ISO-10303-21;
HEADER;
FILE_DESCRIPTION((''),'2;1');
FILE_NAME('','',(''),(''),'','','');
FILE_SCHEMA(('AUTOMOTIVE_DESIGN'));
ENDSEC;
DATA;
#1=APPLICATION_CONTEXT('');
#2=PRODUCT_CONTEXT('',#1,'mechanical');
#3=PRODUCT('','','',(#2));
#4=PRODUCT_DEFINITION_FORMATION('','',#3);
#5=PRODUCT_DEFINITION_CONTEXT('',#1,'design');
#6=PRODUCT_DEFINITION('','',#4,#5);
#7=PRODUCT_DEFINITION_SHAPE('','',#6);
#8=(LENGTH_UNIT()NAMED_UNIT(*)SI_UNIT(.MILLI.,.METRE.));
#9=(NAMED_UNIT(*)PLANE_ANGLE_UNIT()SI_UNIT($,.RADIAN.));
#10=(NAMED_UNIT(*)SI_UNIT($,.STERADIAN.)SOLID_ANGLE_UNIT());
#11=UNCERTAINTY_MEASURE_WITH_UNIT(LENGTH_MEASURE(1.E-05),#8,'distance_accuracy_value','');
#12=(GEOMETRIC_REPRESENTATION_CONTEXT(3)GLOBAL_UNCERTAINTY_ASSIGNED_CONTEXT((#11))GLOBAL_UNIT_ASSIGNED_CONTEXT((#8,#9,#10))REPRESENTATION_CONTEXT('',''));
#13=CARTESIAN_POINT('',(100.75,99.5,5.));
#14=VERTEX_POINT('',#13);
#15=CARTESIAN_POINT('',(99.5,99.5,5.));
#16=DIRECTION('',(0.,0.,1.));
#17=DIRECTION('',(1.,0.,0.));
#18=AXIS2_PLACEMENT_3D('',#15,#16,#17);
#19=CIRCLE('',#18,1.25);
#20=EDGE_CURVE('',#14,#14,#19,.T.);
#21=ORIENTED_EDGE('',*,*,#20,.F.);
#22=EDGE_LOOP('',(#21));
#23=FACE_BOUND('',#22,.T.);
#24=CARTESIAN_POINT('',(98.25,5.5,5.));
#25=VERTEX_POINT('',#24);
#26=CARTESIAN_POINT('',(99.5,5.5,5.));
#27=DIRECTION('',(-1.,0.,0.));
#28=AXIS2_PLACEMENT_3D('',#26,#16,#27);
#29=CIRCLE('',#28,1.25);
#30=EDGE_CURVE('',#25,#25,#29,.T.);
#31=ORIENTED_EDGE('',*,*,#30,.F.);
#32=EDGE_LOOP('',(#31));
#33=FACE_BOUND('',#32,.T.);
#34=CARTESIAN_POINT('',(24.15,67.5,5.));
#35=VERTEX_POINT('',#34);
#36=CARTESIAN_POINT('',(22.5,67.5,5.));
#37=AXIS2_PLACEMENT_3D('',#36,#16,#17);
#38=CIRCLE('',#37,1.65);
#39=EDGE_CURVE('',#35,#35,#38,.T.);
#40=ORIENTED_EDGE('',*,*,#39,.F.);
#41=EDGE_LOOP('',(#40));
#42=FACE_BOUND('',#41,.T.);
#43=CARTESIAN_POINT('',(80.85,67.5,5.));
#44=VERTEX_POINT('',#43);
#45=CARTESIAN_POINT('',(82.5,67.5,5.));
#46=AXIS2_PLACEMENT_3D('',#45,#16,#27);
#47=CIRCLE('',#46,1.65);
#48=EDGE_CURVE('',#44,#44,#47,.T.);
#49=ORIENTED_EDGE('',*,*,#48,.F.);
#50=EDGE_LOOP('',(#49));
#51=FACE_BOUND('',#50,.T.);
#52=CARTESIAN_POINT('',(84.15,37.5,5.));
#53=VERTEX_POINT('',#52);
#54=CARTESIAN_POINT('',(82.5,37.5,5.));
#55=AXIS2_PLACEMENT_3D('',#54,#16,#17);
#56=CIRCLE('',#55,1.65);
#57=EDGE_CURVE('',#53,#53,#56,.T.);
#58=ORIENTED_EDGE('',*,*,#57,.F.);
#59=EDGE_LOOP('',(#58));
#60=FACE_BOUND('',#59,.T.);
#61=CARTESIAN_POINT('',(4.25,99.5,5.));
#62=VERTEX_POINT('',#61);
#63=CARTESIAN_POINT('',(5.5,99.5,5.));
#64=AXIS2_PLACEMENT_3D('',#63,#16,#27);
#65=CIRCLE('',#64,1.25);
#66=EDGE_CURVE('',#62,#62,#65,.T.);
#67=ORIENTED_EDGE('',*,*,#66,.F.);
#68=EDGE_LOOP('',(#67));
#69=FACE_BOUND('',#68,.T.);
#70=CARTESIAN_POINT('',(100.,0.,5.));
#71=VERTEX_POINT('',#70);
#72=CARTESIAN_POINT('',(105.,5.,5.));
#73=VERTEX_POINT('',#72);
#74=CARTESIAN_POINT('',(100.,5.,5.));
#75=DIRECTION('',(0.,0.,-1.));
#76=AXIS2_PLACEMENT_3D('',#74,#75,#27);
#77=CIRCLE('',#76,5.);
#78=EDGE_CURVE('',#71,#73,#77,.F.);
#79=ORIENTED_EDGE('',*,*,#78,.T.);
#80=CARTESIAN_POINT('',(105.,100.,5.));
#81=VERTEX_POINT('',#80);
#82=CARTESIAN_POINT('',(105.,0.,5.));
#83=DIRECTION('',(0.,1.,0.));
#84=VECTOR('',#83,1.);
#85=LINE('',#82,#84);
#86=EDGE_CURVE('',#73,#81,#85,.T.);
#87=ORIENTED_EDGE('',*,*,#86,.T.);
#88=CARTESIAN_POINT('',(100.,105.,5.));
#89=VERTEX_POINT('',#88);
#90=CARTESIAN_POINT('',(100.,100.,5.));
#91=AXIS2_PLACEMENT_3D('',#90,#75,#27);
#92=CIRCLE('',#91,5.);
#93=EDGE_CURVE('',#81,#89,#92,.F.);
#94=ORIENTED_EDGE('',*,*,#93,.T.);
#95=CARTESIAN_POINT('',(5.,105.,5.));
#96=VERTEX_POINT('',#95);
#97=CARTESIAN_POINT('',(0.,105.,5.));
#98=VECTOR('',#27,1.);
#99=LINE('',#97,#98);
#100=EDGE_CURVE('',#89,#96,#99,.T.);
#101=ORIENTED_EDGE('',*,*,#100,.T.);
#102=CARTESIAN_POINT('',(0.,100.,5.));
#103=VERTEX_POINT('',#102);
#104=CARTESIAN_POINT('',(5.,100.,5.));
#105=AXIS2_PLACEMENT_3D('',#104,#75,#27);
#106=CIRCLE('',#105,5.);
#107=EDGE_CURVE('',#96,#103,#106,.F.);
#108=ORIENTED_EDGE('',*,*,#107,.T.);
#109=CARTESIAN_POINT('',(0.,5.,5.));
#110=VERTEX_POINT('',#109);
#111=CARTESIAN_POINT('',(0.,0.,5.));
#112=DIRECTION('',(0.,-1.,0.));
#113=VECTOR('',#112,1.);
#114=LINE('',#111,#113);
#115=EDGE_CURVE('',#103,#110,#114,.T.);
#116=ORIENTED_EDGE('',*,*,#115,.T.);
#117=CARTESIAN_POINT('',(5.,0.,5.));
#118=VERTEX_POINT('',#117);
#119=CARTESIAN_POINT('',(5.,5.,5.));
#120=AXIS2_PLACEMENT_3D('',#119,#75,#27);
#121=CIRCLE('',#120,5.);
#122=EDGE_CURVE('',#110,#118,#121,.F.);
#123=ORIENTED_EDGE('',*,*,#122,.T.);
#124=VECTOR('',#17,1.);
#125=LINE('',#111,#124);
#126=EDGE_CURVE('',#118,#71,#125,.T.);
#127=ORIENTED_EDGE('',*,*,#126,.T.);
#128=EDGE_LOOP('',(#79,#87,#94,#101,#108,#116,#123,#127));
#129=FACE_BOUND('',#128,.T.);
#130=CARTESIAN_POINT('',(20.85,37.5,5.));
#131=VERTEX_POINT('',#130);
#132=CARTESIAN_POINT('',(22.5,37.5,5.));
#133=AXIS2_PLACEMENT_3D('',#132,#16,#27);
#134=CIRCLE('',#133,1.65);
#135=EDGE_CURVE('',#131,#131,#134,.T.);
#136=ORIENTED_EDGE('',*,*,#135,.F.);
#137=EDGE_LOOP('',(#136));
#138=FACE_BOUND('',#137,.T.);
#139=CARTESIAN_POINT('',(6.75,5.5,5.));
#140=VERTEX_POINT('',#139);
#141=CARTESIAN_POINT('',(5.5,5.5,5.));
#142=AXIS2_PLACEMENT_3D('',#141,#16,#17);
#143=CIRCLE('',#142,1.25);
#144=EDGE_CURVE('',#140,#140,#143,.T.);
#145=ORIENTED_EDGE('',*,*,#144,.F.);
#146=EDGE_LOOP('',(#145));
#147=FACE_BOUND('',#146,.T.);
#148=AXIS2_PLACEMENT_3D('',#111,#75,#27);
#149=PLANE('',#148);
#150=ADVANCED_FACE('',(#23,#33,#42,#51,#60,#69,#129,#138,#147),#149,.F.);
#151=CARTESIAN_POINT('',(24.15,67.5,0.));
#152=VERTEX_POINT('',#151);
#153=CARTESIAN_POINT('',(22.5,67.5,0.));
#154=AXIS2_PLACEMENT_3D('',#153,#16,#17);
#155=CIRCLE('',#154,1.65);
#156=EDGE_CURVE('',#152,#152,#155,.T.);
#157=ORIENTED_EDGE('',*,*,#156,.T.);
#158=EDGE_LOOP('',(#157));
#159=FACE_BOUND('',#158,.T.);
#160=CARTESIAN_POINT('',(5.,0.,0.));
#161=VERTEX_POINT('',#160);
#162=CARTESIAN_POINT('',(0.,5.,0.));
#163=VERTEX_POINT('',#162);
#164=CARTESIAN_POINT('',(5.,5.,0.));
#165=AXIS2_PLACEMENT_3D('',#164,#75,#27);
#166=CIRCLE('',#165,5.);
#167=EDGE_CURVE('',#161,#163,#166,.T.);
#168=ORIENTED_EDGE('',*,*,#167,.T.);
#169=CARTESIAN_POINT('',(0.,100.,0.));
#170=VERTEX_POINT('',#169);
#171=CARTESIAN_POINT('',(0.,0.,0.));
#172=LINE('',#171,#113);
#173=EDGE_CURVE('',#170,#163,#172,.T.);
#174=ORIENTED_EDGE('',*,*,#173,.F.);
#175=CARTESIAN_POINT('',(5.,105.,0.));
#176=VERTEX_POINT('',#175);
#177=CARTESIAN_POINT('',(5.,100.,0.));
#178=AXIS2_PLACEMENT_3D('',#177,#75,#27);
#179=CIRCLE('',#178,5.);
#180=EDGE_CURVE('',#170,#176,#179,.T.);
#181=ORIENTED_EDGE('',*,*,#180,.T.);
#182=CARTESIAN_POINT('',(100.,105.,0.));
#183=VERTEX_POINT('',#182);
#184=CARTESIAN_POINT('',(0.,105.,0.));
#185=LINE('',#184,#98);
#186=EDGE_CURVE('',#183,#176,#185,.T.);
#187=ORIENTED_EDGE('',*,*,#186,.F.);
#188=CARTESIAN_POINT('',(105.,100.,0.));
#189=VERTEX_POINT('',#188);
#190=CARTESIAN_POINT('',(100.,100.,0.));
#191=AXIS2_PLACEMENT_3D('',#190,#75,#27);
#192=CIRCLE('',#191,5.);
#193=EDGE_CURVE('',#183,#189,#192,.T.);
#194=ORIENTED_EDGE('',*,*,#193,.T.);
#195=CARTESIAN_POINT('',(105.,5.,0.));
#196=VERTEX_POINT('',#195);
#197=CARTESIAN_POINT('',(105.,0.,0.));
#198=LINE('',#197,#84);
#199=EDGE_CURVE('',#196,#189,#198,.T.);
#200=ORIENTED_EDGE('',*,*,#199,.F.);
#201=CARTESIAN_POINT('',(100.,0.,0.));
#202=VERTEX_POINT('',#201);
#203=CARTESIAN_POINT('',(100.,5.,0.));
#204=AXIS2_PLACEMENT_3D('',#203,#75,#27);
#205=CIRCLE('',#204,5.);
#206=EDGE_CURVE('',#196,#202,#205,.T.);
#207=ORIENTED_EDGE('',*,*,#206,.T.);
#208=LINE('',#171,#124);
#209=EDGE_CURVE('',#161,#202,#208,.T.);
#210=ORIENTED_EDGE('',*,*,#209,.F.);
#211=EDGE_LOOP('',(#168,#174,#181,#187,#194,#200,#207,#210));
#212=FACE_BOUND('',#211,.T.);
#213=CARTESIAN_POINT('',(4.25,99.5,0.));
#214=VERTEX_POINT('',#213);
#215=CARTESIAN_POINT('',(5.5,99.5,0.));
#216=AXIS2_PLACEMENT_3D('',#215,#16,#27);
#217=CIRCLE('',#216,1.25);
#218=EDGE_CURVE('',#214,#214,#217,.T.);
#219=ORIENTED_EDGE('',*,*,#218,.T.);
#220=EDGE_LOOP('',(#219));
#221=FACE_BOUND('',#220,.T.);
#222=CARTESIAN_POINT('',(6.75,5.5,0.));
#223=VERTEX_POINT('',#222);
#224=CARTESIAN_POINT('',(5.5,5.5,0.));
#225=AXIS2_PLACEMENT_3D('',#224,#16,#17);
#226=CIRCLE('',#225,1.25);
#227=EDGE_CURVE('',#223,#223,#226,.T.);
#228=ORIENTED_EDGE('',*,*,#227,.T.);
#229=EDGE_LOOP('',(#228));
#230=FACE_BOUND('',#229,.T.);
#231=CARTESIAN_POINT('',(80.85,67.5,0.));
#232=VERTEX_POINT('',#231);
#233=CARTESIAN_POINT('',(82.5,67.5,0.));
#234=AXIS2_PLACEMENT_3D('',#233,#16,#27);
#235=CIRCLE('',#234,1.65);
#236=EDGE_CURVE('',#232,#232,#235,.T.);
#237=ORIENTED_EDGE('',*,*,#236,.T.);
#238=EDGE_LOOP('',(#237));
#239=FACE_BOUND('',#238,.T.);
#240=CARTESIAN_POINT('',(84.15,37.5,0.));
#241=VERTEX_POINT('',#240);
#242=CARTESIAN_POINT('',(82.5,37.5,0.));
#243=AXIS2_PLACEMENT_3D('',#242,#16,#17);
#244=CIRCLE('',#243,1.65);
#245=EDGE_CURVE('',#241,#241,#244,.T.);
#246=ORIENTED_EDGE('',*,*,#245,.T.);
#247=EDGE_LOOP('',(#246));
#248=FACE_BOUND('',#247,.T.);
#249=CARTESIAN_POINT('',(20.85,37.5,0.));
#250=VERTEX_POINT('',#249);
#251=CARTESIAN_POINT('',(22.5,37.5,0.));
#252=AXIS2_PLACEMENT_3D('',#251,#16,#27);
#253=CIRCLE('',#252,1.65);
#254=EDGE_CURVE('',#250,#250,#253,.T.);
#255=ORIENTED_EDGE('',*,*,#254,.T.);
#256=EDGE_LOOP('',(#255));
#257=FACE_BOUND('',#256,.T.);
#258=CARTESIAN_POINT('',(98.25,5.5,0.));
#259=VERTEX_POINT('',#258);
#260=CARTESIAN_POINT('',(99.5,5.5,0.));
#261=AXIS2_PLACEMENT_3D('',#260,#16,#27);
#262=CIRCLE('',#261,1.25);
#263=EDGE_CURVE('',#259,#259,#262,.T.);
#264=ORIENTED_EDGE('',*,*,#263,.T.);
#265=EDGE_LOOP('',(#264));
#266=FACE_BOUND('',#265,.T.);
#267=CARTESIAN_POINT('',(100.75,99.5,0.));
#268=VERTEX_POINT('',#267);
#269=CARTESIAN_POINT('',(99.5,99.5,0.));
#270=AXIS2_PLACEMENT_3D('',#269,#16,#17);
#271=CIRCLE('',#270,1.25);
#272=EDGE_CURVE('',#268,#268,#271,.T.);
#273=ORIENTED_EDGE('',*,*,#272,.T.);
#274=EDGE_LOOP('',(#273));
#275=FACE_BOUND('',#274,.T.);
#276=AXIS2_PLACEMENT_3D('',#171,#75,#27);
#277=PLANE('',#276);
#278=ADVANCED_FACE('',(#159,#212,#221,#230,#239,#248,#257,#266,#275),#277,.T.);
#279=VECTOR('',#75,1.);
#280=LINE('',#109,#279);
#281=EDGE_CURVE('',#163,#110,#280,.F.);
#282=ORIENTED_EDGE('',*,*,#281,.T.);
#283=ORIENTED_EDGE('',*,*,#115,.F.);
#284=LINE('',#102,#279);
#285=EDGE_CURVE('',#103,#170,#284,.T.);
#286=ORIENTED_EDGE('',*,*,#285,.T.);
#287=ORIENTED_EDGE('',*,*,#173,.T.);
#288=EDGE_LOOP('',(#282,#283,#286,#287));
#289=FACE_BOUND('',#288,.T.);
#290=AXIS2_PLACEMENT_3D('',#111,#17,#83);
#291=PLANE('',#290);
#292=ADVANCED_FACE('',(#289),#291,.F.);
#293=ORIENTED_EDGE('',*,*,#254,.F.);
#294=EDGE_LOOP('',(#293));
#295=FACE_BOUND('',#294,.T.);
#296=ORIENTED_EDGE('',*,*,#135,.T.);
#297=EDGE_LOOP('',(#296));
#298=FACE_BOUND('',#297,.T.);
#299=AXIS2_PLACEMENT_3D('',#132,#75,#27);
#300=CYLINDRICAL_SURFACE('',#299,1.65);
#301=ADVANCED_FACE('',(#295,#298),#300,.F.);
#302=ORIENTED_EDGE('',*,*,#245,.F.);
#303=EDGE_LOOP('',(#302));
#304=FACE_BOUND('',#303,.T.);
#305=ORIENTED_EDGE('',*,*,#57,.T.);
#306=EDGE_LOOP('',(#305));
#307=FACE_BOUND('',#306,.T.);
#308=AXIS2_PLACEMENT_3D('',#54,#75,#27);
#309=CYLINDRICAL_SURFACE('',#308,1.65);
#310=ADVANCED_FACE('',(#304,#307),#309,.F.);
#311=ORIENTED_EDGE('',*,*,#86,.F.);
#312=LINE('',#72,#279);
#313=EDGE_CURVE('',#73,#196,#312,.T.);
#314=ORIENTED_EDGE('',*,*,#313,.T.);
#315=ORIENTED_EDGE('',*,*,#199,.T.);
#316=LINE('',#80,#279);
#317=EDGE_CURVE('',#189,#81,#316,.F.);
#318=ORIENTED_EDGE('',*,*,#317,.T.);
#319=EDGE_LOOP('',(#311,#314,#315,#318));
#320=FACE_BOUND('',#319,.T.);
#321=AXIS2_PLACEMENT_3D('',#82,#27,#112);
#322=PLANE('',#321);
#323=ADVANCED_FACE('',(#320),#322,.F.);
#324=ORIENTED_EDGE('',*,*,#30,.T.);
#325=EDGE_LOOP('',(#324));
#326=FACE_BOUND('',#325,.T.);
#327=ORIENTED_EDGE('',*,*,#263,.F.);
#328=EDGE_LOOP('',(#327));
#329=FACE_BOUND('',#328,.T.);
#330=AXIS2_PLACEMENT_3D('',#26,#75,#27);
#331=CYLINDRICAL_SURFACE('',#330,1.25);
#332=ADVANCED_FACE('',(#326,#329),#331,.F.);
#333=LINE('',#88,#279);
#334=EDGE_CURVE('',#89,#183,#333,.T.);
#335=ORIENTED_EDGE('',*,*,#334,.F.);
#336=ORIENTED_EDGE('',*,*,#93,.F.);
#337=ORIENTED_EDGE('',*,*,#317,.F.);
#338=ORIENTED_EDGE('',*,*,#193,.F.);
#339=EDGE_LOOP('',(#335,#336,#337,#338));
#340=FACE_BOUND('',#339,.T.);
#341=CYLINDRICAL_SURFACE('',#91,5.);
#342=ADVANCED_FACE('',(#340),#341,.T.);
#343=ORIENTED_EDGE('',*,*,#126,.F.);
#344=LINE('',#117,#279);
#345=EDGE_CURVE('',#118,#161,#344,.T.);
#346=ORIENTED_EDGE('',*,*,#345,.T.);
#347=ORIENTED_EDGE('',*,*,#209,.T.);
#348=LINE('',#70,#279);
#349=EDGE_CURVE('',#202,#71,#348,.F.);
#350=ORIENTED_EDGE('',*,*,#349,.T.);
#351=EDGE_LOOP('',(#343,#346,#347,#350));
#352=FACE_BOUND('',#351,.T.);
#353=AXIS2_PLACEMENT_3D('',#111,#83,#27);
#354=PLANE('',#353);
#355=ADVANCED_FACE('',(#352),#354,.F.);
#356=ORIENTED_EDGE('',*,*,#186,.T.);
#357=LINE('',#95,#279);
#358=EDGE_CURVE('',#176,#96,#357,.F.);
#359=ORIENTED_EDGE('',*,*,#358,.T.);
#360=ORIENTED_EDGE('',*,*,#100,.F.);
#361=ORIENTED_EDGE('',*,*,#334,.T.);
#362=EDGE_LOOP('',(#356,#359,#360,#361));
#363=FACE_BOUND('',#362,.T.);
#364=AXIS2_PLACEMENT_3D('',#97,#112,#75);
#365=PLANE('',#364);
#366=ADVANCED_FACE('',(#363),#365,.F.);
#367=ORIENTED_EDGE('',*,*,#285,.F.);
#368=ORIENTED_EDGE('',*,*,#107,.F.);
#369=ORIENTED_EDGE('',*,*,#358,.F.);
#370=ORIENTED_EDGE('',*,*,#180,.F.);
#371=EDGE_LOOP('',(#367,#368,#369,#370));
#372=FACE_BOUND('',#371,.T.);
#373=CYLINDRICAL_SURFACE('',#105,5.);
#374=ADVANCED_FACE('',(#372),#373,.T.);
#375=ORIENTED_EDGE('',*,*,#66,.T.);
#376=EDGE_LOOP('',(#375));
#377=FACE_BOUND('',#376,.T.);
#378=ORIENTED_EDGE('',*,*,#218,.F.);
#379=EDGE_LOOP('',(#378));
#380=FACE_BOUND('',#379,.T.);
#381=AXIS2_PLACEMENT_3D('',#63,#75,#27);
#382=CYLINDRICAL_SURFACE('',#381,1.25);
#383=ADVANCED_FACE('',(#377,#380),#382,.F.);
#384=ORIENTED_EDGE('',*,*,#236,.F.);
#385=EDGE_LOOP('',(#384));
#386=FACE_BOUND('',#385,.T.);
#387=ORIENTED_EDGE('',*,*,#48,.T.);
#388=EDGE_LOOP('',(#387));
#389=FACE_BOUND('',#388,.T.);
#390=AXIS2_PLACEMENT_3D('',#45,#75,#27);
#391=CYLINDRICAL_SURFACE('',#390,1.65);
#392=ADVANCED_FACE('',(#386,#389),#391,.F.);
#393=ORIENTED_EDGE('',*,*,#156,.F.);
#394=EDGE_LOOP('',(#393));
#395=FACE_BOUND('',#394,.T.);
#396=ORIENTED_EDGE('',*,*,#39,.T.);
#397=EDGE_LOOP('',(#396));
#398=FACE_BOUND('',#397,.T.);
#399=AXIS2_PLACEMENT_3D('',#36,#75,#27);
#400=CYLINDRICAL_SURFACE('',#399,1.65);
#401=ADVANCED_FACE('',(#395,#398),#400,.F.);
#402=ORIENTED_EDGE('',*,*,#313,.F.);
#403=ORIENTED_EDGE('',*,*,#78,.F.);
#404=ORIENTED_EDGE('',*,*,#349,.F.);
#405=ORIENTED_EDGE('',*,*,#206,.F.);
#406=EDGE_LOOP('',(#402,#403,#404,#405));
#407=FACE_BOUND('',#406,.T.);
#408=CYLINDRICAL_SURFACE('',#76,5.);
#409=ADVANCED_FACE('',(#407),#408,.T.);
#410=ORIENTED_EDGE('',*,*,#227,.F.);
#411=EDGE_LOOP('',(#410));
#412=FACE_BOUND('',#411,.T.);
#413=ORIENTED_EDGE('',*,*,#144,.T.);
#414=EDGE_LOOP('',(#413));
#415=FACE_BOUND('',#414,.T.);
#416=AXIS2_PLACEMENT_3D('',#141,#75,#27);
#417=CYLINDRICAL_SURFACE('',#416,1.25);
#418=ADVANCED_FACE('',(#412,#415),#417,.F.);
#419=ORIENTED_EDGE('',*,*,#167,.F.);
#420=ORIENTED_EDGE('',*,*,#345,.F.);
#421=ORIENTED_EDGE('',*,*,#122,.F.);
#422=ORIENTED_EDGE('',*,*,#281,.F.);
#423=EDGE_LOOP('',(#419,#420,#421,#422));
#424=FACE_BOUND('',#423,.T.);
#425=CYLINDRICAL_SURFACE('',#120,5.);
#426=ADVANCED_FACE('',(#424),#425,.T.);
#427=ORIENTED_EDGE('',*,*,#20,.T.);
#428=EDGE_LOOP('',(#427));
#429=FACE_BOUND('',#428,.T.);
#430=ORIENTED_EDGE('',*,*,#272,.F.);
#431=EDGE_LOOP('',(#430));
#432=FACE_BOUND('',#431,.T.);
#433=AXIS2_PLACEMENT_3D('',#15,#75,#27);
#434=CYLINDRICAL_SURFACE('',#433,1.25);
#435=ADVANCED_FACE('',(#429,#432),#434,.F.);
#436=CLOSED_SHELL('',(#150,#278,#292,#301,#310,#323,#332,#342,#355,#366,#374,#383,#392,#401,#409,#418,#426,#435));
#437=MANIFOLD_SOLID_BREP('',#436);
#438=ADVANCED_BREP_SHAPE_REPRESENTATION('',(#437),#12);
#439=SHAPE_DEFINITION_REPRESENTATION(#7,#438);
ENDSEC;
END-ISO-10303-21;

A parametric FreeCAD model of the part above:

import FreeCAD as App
import Part
import Sketcher

V = App.Vector


def edges_at(feature, points):
    """Names of the edges that pass closest to the given points."""
    edges = feature.Shape.Edges
    near = lambda p: min(range(len(edges)), key=lambda i: edges[i].distToShape(Part.Vertex(*p))[0])
    return sorted({f"Edge{near(p) + 1}" for p in points})


def add_polygon(sketch, points):
    """Adds a closed chain of lines whose ends are joined by coincident constraints."""
    first, n = sketch.GeometryCount, len(points)
    for a, b in zip(points, points[1:] + points[:1]):
        sketch.addGeometry(Part.LineSegment(App.Vector(*a, 0), App.Vector(*b, 0)), False)
    for i in range(n):
        sketch.addConstraint(Sketcher.Constraint("Coincident", first + i, 2, first + (i + 1) % n, 1))

doc = App.newDocument("Part")
params = doc.addObject("Spreadsheet::Sheet", "Params")
for row, (alias, value) in enumerate([
    ("sketch1_diameter", "2.5 mm"),
    ("sketch1_diameter2", "3.3 mm"),
    ("sketch1_width", "105 mm"),
    ("pad1_length", "5 mm"),
    ("fillet_radius", "5 mm"),
], start=1):
    params.set(f"A{row}", alias)
    params.set(f"B{row}", "=" + value)
    params.setAlias(f"B{row}", alias)

body = doc.addObject("PartDesign::Body", "Body")

# Sketch on XY plane
sketch1 = body.newObject("Sketcher::SketchObject", "Sketch")
sketch1.AttachmentSupport = (doc.getObject("XY_Plane"), [""])
sketch1.MapMode = "FlatFace"
add_polygon(sketch1, [(0, 105), (0, 0), (105, 0), (105, 105)])  # lines 0-3
sketch1.addGeometry(Part.Circle(V(5.5, 5.5, 0), V(0, 0, 1), 1.2), False)  # 4
sketch1.addGeometry(Part.Circle(V(22.5, 37.5, 0), V(0, 0, 1), 1.6), False)  # 5
sketch1.addGeometry(Part.Circle(V(99.5, 5.5, 0), V(0, 0, 1), 1.2), False)  # 6
sketch1.addGeometry(Part.Circle(V(82.5, 37.5, 0), V(0, 0, 1), 1.6), False)  # 7
sketch1.addGeometry(Part.Circle(V(22.5, 67.5, 0), V(0, 0, 1), 1.6), False)  # 8
sketch1.addGeometry(Part.Circle(V(5.5, 99.5, 0), V(0, 0, 1), 1.2), False)  # 9
sketch1.addGeometry(Part.Circle(V(82.5, 67.5, 0), V(0, 0, 1), 1.6), False)  # 10
sketch1.addGeometry(Part.Circle(V(99.5, 99.5, 0), V(0, 0, 1), 1.2), False)  # 11
sketch1.addConstraint(Sketcher.Constraint("Vertical", 0))
sketch1.addConstraint(Sketcher.Constraint("Horizontal", 1))
sketch1.addConstraint(Sketcher.Constraint("Vertical", 2))
sketch1.addConstraint(Sketcher.Constraint("Horizontal", 3))
sketch1.addConstraint(Sketcher.Constraint("Coincident", 0, 2, -1, 1))
sketch1.addConstraint(Sketcher.Constraint("Equal", 4, 6))
sketch1.addConstraint(Sketcher.Constraint("Equal", 5, 7))
sketch1.addConstraint(Sketcher.Constraint("Equal", 7, 8))
sketch1.addConstraint(Sketcher.Constraint("Equal", 6, 9))
sketch1.addConstraint(Sketcher.Constraint("Equal", 8, 10))
sketch1.addConstraint(Sketcher.Constraint("Equal", 9, 11))
sketch1.addConstraint(Sketcher.Constraint("Horizontal", 4, 3, 6, 3))
sketch1.addConstraint(Sketcher.Constraint("Horizontal", 5, 3, 7, 3))
sketch1.addConstraint(Sketcher.Constraint("Horizontal", 8, 3, 10, 3))
sketch1.addConstraint(Sketcher.Constraint("Horizontal", 9, 3, 11, 3))
sketch1.addConstraint(Sketcher.Constraint("Vertical", 5, 3, 8, 3))
sketch1.addConstraint(Sketcher.Constraint("Vertical", 4, 3, 9, 3))
sketch1.addConstraint(Sketcher.Constraint("Vertical", 7, 3, 10, 3))
sketch1.addConstraint(Sketcher.Constraint("Vertical", 6, 3, 11, 3))
sketch1.addConstraint(Sketcher.Constraint("Equal", 3, 0))
sketch1.addConstraint(Sketcher.Constraint("Diameter", 4, 2.5))
sketch1.addConstraint(Sketcher.Constraint("Diameter", 5, 3.3))
sketch1.addConstraint(Sketcher.Constraint("DistanceX", 1, 1, 1, 2, 105.0))
sketch1.addConstraint(Sketcher.Constraint("DistanceX", 4, 3, 5, 3, 17.0))
sketch1.addConstraint(Sketcher.Constraint("DistanceY", 4, 3, 5, 3, 32.0))
sketch1.addConstraint(Sketcher.Constraint("DistanceX", 5, 3, 6, 3, 77.0))
sketch1.addConstraint(Sketcher.Constraint("DistanceX", 7, 3, 6, 3, 17.0))
sketch1.addConstraint(Sketcher.Constraint("DistanceY", 5, 3, 8, 3, 30.0))
sketch1.addConstraint(Sketcher.Constraint("DistanceY", 8, 3, 9, 3, 32.0))
sketch1.addConstraint(Sketcher.Constraint("DistanceX", -1, 1, 4, 3, 5.5))
sketch1.addConstraint(Sketcher.Constraint("DistanceY", -1, 1, 4, 3, 5.5))
sketch1.setExpression("Constraints[24]", "Params.sketch1_diameter")
sketch1.setExpression("Constraints[25]", "Params.sketch1_diameter2")
sketch1.setExpression("Constraints[26]", "Params.sketch1_width")
pad1 = body.newObject("PartDesign::Pad", "Pad")
pad1.Profile = sketch1
pad1.setExpression("Length", "Params.pad1_length")
doc.recompute()

fillet = body.newObject("PartDesign::Fillet", "Fillet")
fillet.Base = (pad1, edges_at(pad1, [
    (0, 105, 2.5),
    (105, 105, 2.5),
    (105, 0, 2.5),
    (0, 0, 2.5),
]))
fillet.setExpression("Radius", "Params.fillet_radius")

doc.recompute()
